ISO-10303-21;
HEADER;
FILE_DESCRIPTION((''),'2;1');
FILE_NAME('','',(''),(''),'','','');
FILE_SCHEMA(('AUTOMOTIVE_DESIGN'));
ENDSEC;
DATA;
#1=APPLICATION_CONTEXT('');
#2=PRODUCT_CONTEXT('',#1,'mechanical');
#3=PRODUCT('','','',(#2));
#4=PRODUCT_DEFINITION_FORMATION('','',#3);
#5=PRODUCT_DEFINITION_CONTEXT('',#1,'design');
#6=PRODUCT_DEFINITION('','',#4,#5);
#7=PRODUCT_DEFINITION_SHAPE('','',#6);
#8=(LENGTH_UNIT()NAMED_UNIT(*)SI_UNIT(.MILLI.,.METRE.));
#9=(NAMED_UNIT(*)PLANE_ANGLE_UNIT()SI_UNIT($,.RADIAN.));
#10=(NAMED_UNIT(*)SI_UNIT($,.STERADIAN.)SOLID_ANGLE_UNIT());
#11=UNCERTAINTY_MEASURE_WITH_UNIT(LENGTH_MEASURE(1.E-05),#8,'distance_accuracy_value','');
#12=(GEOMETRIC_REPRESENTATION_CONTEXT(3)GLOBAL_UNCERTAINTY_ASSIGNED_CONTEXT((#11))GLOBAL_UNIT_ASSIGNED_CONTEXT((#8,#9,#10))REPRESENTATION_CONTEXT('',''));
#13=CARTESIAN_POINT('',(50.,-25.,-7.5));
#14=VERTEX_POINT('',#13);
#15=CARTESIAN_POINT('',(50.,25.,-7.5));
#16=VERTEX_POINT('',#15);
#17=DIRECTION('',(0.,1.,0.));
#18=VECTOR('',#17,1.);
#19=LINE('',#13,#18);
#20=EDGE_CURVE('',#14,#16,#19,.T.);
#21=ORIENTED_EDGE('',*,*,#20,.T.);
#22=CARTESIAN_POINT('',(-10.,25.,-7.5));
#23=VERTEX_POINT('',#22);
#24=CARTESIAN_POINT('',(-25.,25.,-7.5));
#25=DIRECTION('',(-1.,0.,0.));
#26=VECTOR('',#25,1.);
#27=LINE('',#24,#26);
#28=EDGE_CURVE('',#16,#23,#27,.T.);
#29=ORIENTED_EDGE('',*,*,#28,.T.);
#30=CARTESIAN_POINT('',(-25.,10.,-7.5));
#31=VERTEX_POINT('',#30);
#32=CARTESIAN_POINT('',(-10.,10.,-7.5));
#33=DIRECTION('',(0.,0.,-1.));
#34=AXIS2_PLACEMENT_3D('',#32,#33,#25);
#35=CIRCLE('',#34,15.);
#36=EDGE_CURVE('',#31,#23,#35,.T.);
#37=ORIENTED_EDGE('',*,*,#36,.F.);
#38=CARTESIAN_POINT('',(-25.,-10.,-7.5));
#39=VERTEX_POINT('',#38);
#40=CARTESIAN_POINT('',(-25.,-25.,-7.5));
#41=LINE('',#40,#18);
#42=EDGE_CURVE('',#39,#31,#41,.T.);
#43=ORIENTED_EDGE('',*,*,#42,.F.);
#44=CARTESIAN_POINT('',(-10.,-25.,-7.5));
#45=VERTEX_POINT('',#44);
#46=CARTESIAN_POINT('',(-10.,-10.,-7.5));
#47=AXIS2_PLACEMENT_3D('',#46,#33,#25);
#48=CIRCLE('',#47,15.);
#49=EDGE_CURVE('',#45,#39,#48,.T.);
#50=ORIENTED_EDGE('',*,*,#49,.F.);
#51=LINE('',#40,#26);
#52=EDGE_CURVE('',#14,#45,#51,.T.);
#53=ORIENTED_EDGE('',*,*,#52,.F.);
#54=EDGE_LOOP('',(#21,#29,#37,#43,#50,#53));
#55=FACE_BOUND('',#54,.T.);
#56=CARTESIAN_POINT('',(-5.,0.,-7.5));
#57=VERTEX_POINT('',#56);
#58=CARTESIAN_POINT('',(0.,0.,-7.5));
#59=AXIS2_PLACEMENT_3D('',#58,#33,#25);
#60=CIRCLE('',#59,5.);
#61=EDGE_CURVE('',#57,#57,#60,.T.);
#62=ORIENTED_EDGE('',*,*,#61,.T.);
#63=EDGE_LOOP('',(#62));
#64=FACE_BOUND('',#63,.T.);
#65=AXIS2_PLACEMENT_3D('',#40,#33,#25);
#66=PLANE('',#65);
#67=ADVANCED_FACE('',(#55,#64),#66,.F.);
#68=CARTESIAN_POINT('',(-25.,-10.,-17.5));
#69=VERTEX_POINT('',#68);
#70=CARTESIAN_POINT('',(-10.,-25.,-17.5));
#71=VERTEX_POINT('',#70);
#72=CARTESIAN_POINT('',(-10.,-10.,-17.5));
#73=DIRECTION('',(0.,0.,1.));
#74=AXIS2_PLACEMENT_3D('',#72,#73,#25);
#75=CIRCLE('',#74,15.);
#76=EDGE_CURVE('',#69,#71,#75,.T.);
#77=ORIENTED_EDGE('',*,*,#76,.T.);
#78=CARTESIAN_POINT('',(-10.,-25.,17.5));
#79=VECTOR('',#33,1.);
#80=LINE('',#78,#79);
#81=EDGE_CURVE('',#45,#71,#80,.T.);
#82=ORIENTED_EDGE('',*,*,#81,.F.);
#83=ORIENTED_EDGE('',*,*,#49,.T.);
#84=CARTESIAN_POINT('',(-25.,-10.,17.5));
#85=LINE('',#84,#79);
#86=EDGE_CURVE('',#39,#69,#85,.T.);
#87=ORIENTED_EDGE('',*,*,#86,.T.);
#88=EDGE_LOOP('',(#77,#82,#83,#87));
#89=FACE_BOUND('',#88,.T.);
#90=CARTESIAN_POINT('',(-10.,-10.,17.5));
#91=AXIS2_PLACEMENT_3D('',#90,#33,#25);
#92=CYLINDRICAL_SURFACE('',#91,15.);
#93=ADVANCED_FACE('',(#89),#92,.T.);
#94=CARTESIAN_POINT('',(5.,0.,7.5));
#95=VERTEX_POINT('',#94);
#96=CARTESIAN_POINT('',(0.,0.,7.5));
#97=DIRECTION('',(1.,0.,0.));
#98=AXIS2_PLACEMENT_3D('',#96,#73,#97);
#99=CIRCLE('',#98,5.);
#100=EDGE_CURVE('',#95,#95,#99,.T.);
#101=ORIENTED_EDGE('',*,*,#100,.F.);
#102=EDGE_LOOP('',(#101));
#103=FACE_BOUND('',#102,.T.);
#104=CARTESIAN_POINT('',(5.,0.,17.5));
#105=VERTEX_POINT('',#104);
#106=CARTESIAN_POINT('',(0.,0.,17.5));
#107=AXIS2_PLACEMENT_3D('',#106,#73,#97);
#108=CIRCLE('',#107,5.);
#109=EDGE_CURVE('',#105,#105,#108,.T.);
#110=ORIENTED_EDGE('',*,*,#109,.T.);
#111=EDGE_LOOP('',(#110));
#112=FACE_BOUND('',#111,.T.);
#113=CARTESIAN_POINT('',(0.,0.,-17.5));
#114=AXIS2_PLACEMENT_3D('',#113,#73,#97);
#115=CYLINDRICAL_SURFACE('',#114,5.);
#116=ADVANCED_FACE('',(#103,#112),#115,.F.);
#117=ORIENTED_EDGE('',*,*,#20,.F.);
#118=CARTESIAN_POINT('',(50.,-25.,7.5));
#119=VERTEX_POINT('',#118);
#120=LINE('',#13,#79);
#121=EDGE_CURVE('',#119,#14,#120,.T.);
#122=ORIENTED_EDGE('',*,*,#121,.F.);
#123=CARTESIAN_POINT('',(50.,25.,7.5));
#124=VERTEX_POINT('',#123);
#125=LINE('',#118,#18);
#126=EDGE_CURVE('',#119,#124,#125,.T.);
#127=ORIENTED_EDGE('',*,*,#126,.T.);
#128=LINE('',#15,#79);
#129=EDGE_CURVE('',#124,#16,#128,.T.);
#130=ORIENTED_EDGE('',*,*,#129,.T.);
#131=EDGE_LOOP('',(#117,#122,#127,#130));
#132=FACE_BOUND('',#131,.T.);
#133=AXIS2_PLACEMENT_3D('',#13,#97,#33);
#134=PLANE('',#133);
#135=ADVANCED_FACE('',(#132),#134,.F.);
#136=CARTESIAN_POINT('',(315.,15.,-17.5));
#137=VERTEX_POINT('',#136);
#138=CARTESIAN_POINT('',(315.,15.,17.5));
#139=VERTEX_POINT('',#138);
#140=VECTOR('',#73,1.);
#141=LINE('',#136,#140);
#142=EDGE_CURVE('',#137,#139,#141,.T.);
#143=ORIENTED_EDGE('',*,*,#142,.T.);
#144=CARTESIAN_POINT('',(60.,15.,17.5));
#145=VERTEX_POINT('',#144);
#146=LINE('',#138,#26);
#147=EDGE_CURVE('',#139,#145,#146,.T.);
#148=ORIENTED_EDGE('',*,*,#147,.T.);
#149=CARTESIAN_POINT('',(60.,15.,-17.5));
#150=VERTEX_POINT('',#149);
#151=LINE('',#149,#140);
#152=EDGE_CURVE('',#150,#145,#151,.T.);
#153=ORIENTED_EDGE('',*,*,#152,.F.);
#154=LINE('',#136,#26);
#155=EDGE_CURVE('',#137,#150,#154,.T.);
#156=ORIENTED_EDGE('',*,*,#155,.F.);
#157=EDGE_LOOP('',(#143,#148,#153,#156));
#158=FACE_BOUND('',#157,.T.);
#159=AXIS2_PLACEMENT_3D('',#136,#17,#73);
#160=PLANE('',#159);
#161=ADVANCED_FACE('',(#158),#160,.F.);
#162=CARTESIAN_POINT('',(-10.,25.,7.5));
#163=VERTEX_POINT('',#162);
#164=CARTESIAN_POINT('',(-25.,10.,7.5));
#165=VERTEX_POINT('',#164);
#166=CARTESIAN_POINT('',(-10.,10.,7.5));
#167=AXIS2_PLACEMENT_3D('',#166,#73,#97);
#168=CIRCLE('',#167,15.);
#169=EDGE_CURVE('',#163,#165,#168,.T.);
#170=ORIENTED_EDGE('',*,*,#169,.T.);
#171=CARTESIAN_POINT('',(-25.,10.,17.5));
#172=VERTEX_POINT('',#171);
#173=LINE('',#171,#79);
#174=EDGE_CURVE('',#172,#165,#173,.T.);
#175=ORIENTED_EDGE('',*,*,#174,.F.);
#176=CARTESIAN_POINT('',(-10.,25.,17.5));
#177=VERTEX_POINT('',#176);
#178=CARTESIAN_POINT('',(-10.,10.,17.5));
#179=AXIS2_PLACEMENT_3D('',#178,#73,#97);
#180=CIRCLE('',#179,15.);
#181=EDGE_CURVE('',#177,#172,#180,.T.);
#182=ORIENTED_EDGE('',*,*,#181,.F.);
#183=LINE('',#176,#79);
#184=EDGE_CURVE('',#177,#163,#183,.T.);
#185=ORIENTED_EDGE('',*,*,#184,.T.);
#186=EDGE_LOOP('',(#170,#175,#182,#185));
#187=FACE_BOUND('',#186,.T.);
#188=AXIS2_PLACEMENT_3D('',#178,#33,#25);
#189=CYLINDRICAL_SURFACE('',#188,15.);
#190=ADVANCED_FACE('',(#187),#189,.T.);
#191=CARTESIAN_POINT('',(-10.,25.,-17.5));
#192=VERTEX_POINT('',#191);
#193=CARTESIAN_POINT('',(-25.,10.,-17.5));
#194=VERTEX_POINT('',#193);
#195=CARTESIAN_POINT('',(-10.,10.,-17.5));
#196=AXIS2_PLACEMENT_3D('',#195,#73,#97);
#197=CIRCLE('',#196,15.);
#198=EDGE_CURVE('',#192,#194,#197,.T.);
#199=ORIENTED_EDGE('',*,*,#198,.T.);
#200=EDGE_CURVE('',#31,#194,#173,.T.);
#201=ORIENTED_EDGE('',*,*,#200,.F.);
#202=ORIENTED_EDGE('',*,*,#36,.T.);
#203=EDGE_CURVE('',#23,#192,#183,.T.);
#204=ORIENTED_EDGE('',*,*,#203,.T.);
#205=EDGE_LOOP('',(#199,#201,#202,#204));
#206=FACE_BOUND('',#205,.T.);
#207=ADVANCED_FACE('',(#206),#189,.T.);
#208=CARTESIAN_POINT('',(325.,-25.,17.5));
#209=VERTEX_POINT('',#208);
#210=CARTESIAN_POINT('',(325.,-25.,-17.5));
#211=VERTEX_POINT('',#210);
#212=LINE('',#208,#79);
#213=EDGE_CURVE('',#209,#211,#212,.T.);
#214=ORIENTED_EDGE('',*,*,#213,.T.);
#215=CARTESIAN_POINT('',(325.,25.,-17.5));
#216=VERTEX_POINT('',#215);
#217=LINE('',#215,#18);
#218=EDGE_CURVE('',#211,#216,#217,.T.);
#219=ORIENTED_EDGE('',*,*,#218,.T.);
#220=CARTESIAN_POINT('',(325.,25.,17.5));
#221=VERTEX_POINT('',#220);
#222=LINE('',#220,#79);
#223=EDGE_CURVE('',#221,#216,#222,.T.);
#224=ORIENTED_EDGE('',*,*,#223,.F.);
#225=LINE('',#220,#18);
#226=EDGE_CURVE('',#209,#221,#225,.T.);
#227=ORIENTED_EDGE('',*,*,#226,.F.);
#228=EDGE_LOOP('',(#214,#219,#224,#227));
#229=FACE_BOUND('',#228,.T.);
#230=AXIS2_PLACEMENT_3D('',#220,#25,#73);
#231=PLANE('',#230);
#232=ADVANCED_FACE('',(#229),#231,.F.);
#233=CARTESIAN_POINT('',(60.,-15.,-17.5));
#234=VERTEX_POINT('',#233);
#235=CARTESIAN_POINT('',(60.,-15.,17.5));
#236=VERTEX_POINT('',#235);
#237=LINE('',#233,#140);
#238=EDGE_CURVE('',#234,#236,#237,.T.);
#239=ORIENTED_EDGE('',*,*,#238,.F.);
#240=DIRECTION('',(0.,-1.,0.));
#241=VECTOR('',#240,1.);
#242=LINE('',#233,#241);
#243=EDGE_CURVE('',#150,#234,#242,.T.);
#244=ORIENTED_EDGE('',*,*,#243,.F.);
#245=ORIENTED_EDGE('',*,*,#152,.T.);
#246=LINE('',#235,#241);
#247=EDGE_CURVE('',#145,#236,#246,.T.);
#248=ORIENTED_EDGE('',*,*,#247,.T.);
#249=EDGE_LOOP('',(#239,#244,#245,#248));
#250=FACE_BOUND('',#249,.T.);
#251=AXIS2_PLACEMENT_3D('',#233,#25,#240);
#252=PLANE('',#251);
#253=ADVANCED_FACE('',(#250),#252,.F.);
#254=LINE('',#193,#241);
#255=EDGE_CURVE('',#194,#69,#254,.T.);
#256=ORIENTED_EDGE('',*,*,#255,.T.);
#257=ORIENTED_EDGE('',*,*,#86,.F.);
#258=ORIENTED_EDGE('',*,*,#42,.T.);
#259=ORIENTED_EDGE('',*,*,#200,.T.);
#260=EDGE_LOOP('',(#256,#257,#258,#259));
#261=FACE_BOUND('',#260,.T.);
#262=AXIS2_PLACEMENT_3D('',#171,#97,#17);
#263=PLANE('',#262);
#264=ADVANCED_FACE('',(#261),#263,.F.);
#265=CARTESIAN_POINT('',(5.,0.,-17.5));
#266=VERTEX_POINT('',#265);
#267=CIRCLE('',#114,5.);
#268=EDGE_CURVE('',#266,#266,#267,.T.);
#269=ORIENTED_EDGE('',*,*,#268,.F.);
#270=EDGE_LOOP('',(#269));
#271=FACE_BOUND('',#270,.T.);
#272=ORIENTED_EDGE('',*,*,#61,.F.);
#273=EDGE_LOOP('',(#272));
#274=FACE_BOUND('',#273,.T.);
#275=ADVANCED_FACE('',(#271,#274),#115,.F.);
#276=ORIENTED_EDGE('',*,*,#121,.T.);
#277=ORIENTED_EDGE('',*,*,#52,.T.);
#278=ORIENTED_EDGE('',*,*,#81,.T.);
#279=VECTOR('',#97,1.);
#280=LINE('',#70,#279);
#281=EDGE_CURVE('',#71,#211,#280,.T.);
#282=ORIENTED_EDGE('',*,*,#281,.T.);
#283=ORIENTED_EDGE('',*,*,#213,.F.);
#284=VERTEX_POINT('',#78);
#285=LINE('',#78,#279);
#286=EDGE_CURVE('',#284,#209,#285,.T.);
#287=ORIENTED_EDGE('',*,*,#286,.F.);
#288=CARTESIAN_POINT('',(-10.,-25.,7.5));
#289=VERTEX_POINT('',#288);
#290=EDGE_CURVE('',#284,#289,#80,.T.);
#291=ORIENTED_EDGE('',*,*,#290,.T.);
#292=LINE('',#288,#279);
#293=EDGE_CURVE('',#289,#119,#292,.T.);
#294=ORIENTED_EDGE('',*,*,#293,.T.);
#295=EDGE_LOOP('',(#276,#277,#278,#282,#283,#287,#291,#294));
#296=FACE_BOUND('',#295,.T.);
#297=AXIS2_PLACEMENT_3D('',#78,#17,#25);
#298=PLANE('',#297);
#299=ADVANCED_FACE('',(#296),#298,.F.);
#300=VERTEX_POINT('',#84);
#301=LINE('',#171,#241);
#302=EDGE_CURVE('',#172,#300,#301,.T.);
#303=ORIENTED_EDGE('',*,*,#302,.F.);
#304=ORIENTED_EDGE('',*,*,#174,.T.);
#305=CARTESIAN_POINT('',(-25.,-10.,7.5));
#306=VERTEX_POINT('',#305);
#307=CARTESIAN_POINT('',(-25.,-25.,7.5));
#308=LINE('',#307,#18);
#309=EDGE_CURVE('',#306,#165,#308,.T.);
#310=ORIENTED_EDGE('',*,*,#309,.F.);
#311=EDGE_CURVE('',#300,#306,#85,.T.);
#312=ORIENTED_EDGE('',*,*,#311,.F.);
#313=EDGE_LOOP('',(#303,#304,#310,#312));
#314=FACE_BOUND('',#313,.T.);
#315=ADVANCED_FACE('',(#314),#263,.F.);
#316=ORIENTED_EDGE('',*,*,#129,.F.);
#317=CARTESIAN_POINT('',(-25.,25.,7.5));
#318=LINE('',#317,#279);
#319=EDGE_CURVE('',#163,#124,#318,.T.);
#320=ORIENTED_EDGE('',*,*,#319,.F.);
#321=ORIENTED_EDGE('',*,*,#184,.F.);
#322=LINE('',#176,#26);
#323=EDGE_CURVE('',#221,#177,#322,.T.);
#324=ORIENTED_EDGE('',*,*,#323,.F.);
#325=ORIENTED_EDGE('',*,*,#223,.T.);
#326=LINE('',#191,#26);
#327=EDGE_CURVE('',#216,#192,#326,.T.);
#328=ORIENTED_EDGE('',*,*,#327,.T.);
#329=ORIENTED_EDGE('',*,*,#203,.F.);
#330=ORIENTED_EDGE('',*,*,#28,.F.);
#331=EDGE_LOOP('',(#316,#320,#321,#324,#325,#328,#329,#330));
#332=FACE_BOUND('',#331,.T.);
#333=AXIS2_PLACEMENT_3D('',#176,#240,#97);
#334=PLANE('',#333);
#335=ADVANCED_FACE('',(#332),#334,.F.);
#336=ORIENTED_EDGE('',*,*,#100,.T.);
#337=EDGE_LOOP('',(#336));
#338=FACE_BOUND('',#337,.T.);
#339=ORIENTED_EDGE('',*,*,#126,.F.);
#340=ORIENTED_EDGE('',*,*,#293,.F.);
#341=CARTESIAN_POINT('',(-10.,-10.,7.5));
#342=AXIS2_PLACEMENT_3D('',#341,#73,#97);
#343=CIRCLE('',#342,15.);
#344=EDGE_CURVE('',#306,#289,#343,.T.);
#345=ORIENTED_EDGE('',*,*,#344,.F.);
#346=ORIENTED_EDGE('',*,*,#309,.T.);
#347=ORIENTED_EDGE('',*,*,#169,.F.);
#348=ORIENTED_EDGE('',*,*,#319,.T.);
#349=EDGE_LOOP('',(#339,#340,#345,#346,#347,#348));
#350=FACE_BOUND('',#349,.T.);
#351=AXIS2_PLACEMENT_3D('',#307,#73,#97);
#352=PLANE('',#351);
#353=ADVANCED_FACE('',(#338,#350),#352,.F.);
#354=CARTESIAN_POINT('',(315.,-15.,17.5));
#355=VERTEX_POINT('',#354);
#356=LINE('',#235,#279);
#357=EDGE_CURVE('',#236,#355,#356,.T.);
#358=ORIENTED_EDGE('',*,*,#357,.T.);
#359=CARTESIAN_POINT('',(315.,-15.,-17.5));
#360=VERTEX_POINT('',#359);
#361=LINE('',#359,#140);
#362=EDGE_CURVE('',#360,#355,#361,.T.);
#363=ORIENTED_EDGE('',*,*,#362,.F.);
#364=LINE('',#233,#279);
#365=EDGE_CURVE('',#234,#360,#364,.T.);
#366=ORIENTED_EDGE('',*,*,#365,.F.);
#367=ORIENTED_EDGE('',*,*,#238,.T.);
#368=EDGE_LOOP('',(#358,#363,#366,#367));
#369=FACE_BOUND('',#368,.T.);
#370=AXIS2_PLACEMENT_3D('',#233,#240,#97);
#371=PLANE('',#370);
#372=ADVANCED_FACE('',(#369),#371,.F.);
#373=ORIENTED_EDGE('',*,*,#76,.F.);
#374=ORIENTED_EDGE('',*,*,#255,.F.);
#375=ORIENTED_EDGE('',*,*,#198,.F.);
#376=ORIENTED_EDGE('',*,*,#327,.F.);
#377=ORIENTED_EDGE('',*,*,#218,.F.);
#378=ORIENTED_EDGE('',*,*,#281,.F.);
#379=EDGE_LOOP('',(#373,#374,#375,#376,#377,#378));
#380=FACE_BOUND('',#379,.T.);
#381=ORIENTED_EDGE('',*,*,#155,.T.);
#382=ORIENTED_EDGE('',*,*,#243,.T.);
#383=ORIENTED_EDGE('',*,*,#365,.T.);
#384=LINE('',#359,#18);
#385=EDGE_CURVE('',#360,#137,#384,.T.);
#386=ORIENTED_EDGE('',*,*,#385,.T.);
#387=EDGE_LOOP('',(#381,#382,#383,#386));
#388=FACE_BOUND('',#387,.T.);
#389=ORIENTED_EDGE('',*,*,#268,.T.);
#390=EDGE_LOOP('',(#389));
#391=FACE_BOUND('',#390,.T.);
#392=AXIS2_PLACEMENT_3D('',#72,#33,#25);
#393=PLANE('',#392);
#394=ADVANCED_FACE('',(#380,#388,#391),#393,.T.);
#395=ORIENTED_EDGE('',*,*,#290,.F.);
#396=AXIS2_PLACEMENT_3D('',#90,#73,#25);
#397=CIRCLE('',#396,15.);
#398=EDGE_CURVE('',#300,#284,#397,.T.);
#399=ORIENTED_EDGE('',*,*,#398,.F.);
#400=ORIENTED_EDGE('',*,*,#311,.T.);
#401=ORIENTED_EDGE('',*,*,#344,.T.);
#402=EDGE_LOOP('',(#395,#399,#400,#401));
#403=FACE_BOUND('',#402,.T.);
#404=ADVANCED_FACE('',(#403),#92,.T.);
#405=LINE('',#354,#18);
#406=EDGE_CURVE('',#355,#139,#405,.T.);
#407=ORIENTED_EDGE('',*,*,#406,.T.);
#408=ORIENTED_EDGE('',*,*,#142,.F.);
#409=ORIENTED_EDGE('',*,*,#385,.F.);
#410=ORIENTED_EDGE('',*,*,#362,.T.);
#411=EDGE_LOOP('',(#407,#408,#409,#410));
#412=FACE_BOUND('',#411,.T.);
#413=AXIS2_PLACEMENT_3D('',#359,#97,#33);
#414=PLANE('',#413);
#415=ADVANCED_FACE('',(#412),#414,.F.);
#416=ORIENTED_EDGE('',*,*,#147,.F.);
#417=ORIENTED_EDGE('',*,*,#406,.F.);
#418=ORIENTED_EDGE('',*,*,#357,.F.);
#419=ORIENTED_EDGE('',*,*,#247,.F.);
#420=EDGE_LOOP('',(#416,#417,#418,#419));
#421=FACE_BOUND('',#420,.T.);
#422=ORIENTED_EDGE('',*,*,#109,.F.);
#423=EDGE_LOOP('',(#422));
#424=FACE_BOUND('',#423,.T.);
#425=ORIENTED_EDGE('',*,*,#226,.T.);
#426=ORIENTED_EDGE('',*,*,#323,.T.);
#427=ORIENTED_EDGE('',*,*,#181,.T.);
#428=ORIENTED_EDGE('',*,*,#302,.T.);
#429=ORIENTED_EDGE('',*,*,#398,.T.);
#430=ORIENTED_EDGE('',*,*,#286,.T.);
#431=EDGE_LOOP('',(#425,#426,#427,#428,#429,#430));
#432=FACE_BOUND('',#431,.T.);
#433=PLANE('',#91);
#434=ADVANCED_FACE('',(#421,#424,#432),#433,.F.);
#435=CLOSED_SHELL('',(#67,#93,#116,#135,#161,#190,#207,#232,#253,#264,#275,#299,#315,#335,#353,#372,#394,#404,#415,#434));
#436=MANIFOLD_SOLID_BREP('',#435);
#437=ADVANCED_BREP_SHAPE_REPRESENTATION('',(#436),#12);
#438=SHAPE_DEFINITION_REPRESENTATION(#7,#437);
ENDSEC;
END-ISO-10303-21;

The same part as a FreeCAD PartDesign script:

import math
import FreeCAD as App
import Part
import Sketcher

V = App.Vector
Q = App.Units.Quantity


def add_polygon(sketch, points):
    """Adds a closed chain of lines whose ends are joined by coincident constraints."""
    first, n = sketch.GeometryCount, len(points)
    for a, b in zip(points, points[1:] + points[:1]):
        sketch.addGeometry(Part.LineSegment(App.Vector(*a, 0), App.Vector(*b, 0)), False)
    for i in range(n):
        sketch.addConstraint(Sketcher.Constraint("Coincident", first + i, 2, first + (i + 1) % n, 1))

doc = App.newDocument("Part")
params = doc.addObject("Spreadsheet::Sheet", "Params")
for row, (alias, value) in enumerate([
    ("sketch1_radius", "15 mm"),
    ("sketch1_width", "335 mm"),
    ("sketch1_height", "20 mm"),
    ("pad1_length", "35 mm"),
    ("sketch2_width", "75 mm"),
    ("sketch2_height", "15 mm"),
    ("sketch3_diameter", "10 mm"),
    ("sketch4_width", "255 mm"),
    ("sketch4_height", "30 mm"),
], start=1):
    params.set(f"A{row}", alias)
    params.set(f"B{row}", "=" + value)
    params.setAlias(f"B{row}", alias)

body = doc.addObject("PartDesign::Body", "Body")

sketch1 = body.newObject("Sketcher::SketchObject", "Sketch")
sketch1.AttachmentSupport = (doc.getObject("XY_Plane"), [""])
sketch1.MapMode = "FlatFace"
sketch1.addGeometry([
    Part.LineSegment(V(325, 25, 0), V(-10, 25, 0)),
    Part.ArcOfCircle(Part.Circle(V(-10, 10, 0), V(0, 0, 1), 15), math.radians(90), math.radians(180)),
    Part.LineSegment(V(-25, 10, 0), V(-25, -10, 0)),
    Part.ArcOfCircle(Part.Circle(V(-10, -10, 0), V(0, 0, 1), 15), math.radians(180), math.radians(270)),
    Part.LineSegment(V(-10, -25, 0), V(325, -25, 0)),
    Part.LineSegment(V(325, -25, 0), V(325, 25, 0)),
], False)
sketch1.addConstraint([
    Sketcher.Constraint("Tangent", 0, 2, 1, 1),
    Sketcher.Constraint("Tangent", 1, 2, 2, 1),
    Sketcher.Constraint("Tangent", 2, 2, 3, 1),
    Sketcher.Constraint("Tangent", 3, 2, 4, 1),
    Sketcher.Constraint("Coincident", 4, 2, 5, 1),
    Sketcher.Constraint("Coincident", 5, 2, 0, 1),
    Sketcher.Constraint("Horizontal", 0),
    Sketcher.Constraint("Vertical", 2),
    Sketcher.Constraint("Horizontal", 4),
    Sketcher.Constraint("Vertical", 5),
    Sketcher.Constraint("Equal", 1, 3),
    Sketcher.Constraint("Radius", 1, Q("15 mm")),
    Sketcher.Constraint("DistanceX", 0, 2, 0, 1, Q("335 mm")),
    Sketcher.Constraint("DistanceY", 2, 2, 2, 1, Q("20 mm")),
    Sketcher.Constraint("DistanceX", 1, 3, -1, 1, Q("10 mm")),
    Sketcher.Constraint("DistanceY", -1, 1, 1, 3, Q("10 mm")),
])
sketch1.setExpression("Constraints[11]", "Params.sketch1_radius")
sketch1.setExpression("Constraints[12]", "Params.sketch1_width")
sketch1.setExpression("Constraints[13]", "Params.sketch1_height")
pad1 = body.newObject("PartDesign::Pad", "Pad")
pad1.Profile = sketch1
pad1.setExpression("Length", "Params.pad1_length")
pad1.Midplane = True

sketch2 = body.newObject("Sketcher::SketchObject", "Sketch001")
sketch2.AttachmentSupport = (doc.getObject("XZ_Plane"), [""])
sketch2.MapMode = "FlatFace"
sketch2.AttachmentOffset = App.Placement(V(0, 0, -25), App.Rotation())
add_polygon(sketch2, [(50, 8), (50, -8), (-25, -8), (-25, 8)])
sketch2.addConstraint([
    Sketcher.Constraint("Vertical", 0),
    Sketcher.Constraint("Horizontal", 1),
    Sketcher.Constraint("Vertical", 2),
    Sketcher.Constraint("Horizontal", 3),
    Sketcher.Constraint("DistanceX", 1, 2, 1, 1, Q("75 mm")),
    Sketcher.Constraint("DistanceY", 0, 2, 0, 1, Q("15 mm")),
    Sketcher.Constraint("DistanceX", -1, 1, 0, 2, Q("50 mm")),
    Sketcher.Constraint("DistanceY", 0, 2, -1, 1, Q("7.5 mm")),
])
sketch2.setExpression("Constraints[8]", "Params.sketch2_width")
sketch2.setExpression("Constraints[9]", "Params.sketch2_height")
pocket1 = body.newObject("PartDesign::Pocket", "Pocket")
pocket1.Profile = sketch2
pocket1.Type = "ThroughAll"
pocket1.Reversed = True

sketch3 = body.newObject("Sketcher::SketchObject", "Sketch002")
sketch3.AttachmentSupport = (doc.getObject("XY_Plane"), [""])
sketch3.MapMode = "FlatFace"
sketch3.addGeometry(Part.Circle(V(0, 0, 0), V(0, 0, 1), 5), False)
sketch3.addConstraint([
    Sketcher.Constraint("Coincident", 0, 3, -1, 1),
    Sketcher.Constraint("Diameter", 0, Q("10 mm")),
])
sketch3.setExpression("Constraints[1]", "Params.sketch3_diameter")
pocket2 = body.newObject("PartDesign::Pocket", "Pocket001")
pocket2.Profile = sketch3
pocket2.Type = "ThroughAll"
pocket2.Midplane = True

sketch4 = body.newObject("Sketcher::SketchObject", "Sketch003")
sketch4.AttachmentSupport = (doc.getObject("XY_Plane"), [""])
sketch4.MapMode = "FlatFace"
add_polygon(sketch4, [(60, 15), (60, -15), (315, -15), (315, 15)])
sketch4.addConstraint([
    Sketcher.Constraint("Vertical", 0),
    Sketcher.Constraint("Horizontal", 1),
    Sketcher.Constraint("Vertical", 2),
    Sketcher.Constraint("Horizontal", 3),
    Sketcher.Constraint("DistanceX", 1, 1, 1, 2, Q("255 mm")),
    Sketcher.Constraint("DistanceY", 0, 2, 0, 1, Q("30 mm")),
    Sketcher.Constraint("DistanceX", -1, 1, 0, 2, Q("60 mm")),
    Sketcher.Constraint("DistanceY", 0, 2, -1, 1, Q("15 mm")),
])
sketch4.setExpression("Constraints[8]", "Params.sketch4_width")
sketch4.setExpression("Constraints[9]", "Params.sketch4_height")
pocket3 = body.newObject("PartDesign::Pocket", "Pocket002")
pocket3.Profile = sketch4
pocket3.Type = "ThroughAll"
pocket3.Midplane = True

doc.recompute()
